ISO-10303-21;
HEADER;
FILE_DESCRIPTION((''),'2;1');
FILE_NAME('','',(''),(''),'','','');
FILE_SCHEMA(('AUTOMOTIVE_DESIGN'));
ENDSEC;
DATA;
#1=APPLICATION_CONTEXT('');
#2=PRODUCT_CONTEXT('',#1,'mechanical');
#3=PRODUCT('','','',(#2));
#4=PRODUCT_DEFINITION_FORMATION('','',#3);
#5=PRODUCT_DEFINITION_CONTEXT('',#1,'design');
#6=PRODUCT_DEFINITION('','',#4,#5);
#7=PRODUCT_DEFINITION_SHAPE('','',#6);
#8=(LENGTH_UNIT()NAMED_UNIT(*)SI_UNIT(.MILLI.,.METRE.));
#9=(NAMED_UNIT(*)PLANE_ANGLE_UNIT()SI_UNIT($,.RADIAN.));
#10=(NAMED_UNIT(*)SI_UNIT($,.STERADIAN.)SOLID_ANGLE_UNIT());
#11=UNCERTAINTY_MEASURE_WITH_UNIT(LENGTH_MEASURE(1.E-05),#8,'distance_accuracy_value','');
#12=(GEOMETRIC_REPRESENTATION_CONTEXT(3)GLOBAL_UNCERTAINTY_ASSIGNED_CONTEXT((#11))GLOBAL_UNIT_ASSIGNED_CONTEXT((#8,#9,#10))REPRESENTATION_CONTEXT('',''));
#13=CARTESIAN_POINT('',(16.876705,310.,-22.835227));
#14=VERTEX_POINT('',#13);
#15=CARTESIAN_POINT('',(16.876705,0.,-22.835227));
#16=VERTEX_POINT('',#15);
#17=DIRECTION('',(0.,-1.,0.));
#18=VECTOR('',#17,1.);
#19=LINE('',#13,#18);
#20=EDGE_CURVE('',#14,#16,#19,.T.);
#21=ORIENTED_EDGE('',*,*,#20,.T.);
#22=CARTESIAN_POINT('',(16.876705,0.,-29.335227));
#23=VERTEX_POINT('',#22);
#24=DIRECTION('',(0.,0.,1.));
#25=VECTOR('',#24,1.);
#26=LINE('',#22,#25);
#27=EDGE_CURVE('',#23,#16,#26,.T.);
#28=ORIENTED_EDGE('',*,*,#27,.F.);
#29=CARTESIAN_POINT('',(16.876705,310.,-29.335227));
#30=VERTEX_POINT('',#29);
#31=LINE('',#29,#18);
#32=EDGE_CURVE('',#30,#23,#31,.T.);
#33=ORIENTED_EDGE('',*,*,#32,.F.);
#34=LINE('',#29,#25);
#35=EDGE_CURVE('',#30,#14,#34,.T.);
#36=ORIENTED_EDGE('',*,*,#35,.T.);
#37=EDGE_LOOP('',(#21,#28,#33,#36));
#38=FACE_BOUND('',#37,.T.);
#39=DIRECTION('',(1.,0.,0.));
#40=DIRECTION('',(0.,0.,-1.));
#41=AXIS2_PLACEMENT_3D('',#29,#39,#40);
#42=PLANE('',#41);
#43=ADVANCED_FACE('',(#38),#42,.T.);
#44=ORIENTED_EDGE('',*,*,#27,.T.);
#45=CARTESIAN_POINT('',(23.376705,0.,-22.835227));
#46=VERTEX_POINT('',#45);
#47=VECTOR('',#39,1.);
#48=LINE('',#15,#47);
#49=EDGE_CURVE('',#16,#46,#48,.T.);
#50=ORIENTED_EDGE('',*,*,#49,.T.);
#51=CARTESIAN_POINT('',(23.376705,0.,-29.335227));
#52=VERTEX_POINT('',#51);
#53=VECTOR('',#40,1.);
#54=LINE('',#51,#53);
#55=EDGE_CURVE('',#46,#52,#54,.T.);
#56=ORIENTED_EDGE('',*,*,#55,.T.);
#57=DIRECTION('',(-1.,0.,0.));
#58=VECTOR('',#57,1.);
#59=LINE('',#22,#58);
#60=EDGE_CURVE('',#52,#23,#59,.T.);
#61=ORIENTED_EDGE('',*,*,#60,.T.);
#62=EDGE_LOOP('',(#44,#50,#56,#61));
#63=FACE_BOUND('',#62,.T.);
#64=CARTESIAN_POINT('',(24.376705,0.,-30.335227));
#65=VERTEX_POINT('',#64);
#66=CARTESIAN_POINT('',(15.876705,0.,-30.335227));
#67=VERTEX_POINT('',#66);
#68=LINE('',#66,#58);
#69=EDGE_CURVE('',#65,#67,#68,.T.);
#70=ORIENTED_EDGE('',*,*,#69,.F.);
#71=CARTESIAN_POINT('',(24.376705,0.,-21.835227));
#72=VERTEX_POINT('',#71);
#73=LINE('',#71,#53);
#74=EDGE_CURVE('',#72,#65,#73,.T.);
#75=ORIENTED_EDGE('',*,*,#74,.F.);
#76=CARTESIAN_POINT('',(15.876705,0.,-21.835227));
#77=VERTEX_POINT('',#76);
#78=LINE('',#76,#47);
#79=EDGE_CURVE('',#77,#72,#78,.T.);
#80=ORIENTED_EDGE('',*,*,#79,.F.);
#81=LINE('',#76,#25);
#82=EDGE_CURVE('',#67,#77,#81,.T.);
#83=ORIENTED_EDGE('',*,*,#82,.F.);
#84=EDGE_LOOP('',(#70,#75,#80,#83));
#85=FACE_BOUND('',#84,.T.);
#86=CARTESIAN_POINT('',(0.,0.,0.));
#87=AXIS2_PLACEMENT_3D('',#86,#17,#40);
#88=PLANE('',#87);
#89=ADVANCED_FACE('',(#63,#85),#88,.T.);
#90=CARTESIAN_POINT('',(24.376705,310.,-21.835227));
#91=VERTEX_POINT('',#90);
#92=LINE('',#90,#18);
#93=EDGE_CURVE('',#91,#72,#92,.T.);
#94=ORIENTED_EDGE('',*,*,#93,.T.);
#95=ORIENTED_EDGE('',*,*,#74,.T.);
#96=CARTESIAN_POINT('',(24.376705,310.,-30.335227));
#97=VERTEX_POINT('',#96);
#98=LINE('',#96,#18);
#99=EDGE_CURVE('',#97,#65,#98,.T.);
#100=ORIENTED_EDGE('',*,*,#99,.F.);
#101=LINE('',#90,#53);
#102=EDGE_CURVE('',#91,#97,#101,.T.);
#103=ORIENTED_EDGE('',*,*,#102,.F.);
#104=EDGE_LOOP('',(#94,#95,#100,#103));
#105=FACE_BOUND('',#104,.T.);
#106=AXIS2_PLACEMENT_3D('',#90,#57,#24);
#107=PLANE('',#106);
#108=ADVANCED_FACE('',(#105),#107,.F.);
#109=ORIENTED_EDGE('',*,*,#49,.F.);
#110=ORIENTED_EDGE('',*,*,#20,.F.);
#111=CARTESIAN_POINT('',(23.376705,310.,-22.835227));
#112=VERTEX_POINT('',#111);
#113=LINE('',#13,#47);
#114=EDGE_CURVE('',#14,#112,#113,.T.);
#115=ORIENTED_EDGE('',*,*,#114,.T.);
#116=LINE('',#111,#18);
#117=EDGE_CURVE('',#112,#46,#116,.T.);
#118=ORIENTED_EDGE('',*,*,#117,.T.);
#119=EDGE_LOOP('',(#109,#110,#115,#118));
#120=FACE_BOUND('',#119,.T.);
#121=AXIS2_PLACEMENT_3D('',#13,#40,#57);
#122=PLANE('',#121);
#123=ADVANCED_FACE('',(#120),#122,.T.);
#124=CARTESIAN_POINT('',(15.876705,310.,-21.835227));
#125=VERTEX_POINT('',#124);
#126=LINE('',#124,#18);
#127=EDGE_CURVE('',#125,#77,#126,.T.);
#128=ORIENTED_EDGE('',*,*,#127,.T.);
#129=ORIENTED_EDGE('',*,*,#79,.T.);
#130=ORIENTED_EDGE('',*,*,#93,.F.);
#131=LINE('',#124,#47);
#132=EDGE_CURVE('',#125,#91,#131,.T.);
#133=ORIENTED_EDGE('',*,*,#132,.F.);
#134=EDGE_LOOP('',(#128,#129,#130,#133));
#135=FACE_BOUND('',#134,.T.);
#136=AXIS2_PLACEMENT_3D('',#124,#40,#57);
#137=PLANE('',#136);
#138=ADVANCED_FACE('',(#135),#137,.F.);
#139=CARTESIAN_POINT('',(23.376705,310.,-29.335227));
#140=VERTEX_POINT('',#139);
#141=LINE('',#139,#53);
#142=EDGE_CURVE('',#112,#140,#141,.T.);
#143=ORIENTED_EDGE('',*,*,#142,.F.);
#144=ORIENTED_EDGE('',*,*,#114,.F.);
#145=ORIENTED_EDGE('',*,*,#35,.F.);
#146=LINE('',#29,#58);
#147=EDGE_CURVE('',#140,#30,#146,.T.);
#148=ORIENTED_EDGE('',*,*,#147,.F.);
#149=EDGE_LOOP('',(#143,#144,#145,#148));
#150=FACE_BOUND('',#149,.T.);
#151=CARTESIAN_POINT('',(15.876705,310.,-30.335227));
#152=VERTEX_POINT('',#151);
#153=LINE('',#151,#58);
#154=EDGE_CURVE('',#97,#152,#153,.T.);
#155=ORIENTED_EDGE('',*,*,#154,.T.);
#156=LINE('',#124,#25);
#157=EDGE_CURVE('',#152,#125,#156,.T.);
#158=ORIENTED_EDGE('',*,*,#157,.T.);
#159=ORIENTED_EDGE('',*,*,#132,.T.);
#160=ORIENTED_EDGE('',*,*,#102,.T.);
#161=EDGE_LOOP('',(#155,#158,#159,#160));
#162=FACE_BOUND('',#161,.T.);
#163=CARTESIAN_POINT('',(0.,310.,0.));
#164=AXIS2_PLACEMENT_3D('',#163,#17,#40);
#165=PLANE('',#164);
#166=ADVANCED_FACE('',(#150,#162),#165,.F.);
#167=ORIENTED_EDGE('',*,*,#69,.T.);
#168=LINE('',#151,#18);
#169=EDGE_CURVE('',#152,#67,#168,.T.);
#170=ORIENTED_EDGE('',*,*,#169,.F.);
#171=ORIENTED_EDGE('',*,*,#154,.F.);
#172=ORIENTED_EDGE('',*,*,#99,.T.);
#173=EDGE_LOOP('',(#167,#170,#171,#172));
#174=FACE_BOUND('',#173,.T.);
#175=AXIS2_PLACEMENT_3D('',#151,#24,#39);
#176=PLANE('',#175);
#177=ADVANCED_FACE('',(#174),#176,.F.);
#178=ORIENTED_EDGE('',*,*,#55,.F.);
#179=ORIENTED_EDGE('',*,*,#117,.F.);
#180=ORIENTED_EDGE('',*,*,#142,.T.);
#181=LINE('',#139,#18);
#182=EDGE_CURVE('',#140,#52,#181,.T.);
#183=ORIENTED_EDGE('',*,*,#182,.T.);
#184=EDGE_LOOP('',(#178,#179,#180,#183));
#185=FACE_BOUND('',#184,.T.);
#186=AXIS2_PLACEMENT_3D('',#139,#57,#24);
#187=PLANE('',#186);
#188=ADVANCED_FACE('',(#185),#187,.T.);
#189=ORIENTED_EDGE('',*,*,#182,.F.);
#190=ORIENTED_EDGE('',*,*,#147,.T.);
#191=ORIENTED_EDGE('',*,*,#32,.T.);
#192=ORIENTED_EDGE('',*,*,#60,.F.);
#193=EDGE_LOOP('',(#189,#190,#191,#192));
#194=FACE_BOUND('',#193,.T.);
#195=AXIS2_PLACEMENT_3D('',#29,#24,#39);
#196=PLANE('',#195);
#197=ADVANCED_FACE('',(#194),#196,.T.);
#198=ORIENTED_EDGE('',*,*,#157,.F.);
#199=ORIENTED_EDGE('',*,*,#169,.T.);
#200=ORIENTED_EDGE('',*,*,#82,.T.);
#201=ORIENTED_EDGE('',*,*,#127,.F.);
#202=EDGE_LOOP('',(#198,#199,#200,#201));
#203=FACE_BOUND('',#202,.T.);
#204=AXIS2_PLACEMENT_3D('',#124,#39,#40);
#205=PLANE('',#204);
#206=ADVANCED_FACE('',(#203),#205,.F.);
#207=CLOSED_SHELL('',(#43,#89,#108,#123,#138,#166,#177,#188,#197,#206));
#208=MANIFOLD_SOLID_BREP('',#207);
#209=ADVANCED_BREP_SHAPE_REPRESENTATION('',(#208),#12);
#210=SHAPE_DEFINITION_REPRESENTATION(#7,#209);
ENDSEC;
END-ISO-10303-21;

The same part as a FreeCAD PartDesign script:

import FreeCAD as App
import Part
import Sketcher
from FreeCAD import Vector

doc = App.newDocument("Part")
body = doc.addObject("PartDesign::Body", "Body")

# Sketch on XZ plane
sketch1 = doc.addObject("Sketcher::SketchObject", "Sketch")
body.addObject(sketch1)
sketch1.AttachmentSupport = (doc.XZ_Plane, [""])
sketch1.MapMode = "FlatFace"
sketch1.addGeometry(Part.LineSegment(Vector(16, -30, 0), Vector(16, -22, 0)), False)
sketch1.addGeometry(Part.LineSegment(Vector(16, -22, 0), Vector(24, -22, 0)), False)
sketch1.addGeometry(Part.LineSegment(Vector(24, -22, 0), Vector(24, -30, 0)), False)
sketch1.addGeometry(Part.LineSegment(Vector(24, -30, 0), Vector(16, -30, 0)), False)
sketch1.addGeometry(Part.LineSegment(Vector(23, -23, 0), Vector(17, -23, 0)), False)
sketch1.addGeometry(Part.LineSegment(Vector(17, -23, 0), Vector(17, -29, 0)), False)
sketch1.addGeometry(Part.LineSegment(Vector(17, -29, 0), Vector(23, -29, 0)), False)
sketch1.addGeometry(Part.LineSegment(Vector(23, -29, 0), Vector(23, -23, 0)), False)
sketch1.addConstraint(Sketcher.Constraint("Coincident", 0, 2, 1, 1))
sketch1.addConstraint(Sketcher.Constraint("Coincident", 1, 2, 2, 1))
sketch1.addConstraint(Sketcher.Constraint("Coincident", 2, 2, 3, 1))
sketch1.addConstraint(Sketcher.Constraint("Coincident", 3, 2, 0, 1))
sketch1.addConstraint(Sketcher.Constraint("Coincident", 4, 2, 5, 1))
sketch1.addConstraint(Sketcher.Constraint("Coincident", 5, 2, 6, 1))
sketch1.addConstraint(Sketcher.Constraint("Coincident", 6, 2, 7, 1))
sketch1.addConstraint(Sketcher.Constraint("Coincident", 7, 2, 4, 1))
sketch1.addConstraint(Sketcher.Constraint("Vertical", 0))
sketch1.addConstraint(Sketcher.Constraint("Horizontal", 1))
sketch1.addConstraint(Sketcher.Constraint("Vertical", 2))
sketch1.addConstraint(Sketcher.Constraint("Horizontal", 3))
sketch1.addConstraint(Sketcher.Constraint("Horizontal", 4))
sketch1.addConstraint(Sketcher.Constraint("Vertical", 5))
sketch1.addConstraint(Sketcher.Constraint("Horizontal", 6))
sketch1.addConstraint(Sketcher.Constraint("Vertical", 7))
sketch1.addConstraint(Sketcher.Constraint("Equal", 3, 0))
sketch1.addConstraint(Sketcher.Constraint("Equal", 6, 5))
sketch1.addConstraint(Sketcher.Constraint("DistanceX", 1, 1, 1, 2, 8.5))
sketch1.addConstraint(Sketcher.Constraint("DistanceX", 4, 2, 4, 1, 6.5))
sketch1.addConstraint(Sketcher.Constraint("DistanceX", 0, 2, 4, 2, 1.0))
sketch1.addConstraint(Sketcher.Constraint("DistanceY", 4, 2, 0, 2, 1.0))
sketch1.addConstraint(Sketcher.Constraint("DistanceX", -1, 1, 0, 2, 15.876705))
sketch1.addConstraint(Sketcher.Constraint("DistanceY", 0, 2, -1, 1, 21.835227))
pad1 = doc.addObject("PartDesign::Pad", "Pad")
body.addObject(pad1)
pad1.Profile = sketch1
pad1.Length = 310
pad1.Reversed = True

doc.recompute()
